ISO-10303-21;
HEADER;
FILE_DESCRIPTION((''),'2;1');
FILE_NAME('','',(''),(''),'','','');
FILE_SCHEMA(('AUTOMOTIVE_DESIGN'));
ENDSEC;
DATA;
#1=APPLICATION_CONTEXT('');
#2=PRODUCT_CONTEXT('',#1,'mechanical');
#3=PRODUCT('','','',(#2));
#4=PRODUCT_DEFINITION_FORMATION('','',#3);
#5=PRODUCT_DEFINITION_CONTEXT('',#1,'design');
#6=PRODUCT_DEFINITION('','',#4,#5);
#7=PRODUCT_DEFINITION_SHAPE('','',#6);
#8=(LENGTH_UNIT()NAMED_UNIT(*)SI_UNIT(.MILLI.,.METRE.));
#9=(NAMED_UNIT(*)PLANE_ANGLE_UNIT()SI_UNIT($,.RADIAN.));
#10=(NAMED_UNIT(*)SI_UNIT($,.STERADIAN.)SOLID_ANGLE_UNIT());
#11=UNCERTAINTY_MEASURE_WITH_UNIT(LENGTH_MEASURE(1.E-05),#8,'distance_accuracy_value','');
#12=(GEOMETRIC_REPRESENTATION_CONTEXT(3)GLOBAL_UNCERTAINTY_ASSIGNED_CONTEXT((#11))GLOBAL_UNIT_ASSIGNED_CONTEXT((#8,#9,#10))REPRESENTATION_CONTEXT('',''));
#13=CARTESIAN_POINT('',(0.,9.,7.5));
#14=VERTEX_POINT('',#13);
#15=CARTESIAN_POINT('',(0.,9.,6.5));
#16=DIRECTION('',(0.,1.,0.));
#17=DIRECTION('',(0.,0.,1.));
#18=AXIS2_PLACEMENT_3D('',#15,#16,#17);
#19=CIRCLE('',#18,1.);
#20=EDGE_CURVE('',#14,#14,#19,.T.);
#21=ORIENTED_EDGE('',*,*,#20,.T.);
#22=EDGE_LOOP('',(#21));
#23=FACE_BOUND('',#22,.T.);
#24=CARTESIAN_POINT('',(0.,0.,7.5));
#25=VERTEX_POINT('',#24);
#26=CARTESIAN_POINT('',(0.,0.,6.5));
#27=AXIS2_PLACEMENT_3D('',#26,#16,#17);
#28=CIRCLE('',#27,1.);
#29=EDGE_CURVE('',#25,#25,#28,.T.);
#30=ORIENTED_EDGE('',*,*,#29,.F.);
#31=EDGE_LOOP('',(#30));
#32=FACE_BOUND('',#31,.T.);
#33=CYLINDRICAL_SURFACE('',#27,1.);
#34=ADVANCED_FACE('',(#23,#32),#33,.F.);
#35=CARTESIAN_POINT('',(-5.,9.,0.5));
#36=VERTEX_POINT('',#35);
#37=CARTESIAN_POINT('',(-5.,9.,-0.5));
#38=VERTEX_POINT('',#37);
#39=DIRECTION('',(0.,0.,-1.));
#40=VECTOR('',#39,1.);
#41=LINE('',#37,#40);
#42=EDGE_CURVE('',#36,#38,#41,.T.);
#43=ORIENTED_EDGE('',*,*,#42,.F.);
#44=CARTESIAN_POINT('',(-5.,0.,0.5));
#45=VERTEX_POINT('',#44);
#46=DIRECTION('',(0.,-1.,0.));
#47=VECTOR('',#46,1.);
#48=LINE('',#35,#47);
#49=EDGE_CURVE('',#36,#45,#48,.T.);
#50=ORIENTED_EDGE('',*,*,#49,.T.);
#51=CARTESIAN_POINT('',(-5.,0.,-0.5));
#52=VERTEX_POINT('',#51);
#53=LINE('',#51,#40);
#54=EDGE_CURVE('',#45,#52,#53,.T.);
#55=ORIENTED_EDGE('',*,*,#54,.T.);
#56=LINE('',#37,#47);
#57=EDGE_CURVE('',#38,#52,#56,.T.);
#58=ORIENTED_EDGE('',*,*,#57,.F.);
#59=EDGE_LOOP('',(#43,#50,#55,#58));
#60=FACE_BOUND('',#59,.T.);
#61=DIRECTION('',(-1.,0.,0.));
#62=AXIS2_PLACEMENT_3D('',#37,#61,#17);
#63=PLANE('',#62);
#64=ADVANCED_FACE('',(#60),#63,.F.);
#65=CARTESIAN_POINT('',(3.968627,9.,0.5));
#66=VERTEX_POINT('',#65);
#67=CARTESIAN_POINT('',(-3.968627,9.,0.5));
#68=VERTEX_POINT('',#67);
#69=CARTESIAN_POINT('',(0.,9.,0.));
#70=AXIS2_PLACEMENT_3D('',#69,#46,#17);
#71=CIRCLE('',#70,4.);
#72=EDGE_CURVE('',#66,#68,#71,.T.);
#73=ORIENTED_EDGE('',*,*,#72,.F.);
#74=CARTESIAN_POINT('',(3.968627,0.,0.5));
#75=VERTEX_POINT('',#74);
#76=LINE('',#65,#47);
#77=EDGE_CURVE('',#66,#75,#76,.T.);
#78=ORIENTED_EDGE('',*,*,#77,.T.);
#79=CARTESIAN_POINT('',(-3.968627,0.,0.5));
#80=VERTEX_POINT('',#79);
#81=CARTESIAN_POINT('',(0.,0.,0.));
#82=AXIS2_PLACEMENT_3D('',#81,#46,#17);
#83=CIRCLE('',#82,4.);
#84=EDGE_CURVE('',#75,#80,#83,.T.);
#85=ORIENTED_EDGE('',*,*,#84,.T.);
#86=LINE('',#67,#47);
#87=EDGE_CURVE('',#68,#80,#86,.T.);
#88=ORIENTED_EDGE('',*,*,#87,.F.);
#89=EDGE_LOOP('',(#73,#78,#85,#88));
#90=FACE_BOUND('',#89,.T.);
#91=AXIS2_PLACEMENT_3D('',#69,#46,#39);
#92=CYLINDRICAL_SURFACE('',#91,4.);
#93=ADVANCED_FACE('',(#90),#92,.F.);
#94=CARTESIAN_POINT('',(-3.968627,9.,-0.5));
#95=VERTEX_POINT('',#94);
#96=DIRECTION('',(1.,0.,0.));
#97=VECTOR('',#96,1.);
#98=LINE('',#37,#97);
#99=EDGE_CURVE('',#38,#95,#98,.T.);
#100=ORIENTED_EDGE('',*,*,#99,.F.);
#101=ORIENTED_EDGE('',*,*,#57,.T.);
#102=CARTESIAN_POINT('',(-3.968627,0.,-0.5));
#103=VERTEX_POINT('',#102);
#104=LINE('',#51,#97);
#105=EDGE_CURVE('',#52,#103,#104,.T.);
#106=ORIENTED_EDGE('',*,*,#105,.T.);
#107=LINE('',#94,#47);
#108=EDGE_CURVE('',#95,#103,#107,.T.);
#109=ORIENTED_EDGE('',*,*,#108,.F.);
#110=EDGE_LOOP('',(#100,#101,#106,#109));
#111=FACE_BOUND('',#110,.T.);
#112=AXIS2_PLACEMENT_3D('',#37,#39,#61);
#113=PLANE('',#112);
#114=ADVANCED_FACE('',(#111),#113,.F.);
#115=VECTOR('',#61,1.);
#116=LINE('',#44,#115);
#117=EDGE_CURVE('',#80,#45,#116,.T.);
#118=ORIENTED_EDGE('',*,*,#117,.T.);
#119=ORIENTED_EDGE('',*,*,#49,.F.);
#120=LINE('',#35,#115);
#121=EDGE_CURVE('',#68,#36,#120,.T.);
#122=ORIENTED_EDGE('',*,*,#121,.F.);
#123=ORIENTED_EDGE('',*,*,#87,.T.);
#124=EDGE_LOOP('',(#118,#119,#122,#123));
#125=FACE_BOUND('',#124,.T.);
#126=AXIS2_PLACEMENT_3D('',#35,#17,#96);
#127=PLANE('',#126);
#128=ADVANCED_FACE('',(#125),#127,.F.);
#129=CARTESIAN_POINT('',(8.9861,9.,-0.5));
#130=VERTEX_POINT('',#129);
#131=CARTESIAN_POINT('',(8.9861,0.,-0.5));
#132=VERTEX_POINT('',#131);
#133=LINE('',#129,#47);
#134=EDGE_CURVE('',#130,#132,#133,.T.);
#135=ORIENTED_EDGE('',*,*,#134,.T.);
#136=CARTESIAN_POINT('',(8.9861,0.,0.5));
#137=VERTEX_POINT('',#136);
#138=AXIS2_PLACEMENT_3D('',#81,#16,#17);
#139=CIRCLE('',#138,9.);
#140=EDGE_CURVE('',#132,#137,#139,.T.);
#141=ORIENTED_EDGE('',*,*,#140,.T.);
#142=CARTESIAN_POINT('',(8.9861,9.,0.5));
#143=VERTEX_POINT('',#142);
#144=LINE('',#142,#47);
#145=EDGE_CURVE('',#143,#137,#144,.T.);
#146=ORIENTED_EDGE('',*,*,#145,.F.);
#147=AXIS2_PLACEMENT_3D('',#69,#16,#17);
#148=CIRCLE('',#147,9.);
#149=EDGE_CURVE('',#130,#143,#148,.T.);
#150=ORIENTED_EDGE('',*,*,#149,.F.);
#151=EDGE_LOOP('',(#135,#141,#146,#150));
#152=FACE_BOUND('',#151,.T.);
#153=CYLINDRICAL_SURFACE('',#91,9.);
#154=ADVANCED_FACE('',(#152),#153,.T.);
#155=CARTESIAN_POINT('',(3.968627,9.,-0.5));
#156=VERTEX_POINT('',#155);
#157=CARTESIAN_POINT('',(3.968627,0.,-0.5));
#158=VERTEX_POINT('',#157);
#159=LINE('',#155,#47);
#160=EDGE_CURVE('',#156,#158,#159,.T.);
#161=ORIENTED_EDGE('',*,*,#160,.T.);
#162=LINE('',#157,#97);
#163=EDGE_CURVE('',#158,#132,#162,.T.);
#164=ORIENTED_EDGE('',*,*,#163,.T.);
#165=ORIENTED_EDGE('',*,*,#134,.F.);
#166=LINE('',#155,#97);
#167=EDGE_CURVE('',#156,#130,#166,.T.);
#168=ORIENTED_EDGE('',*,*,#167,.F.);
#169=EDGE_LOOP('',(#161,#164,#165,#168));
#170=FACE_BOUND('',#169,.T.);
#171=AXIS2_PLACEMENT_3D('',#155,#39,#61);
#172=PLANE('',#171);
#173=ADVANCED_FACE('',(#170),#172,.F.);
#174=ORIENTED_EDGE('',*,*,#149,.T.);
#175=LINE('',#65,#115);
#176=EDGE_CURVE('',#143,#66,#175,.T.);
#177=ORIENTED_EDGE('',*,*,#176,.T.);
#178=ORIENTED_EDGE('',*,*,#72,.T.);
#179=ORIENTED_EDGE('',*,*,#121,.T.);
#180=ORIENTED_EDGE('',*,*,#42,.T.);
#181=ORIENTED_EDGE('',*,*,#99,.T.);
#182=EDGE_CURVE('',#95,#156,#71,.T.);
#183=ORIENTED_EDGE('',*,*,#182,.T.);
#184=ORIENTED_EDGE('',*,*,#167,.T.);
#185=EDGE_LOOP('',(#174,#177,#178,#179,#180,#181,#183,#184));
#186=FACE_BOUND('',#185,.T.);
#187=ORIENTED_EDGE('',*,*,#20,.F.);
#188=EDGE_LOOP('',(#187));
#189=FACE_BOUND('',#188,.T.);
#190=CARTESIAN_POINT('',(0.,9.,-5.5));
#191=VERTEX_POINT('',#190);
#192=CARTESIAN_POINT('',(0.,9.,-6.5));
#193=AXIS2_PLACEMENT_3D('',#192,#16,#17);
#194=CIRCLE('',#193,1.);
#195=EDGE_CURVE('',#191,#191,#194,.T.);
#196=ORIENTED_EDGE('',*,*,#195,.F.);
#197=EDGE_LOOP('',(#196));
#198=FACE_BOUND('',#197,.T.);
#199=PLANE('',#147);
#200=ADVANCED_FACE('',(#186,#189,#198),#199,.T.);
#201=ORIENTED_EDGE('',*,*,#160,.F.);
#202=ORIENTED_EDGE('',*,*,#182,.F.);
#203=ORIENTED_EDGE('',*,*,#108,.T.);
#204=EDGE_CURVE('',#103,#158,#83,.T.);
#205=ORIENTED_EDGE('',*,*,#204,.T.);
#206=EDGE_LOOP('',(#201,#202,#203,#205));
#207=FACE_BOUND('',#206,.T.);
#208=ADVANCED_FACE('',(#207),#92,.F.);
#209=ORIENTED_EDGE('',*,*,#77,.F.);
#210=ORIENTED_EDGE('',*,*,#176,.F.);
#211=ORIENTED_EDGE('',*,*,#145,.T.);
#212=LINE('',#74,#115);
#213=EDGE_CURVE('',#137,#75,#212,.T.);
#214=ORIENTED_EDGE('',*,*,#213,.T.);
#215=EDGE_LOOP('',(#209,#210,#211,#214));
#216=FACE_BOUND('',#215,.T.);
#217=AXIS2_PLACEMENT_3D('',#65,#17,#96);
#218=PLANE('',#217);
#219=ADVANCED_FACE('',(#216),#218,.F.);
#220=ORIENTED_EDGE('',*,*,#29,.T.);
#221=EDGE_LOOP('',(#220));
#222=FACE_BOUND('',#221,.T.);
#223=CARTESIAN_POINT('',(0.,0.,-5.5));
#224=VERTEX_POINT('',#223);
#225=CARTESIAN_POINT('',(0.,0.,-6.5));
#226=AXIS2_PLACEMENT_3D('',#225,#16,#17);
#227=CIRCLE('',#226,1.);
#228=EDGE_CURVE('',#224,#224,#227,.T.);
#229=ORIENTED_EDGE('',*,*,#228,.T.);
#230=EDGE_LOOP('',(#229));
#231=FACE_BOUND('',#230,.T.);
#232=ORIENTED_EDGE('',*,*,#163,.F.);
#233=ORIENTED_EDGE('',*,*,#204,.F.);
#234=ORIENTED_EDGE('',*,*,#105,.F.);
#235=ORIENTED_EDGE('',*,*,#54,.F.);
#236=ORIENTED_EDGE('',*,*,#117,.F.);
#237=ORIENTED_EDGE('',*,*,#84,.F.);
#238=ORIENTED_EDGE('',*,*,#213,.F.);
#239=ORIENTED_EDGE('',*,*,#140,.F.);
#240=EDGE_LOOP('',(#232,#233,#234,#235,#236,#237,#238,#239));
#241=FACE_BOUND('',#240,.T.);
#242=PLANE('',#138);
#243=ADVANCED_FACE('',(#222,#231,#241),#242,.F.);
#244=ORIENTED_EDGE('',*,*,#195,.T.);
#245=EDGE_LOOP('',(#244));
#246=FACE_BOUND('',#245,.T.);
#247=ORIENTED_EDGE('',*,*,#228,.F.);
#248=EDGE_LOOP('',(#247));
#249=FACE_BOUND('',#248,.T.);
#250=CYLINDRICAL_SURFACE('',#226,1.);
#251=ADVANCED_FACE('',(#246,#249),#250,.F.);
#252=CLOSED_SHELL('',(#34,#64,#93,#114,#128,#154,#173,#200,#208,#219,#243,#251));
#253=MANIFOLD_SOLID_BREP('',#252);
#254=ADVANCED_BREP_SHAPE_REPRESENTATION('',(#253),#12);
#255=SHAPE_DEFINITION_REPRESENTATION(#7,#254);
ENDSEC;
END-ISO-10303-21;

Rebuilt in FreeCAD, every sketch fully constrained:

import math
import FreeCAD as App
import Part
import Sketcher

V = App.Vector

doc = App.newDocument("Part")
params = doc.addObject("Spreadsheet::Sheet", "Params")
for row, (alias, value) in enumerate([
    ("sketch1_radius", "9 mm"),
    ("sketch1_radius2", "4 mm"),
    ("sketch1_height", "1 mm"),
    ("pad1_length", "9 mm"),
    ("sketch2_diameter", "2 mm"),
], start=1):
    params.set(f"A{row}", alias)
    params.set(f"B{row}", "=" + value)
    params.setAlias(f"B{row}", alias)

body = doc.addObject("PartDesign::Body", "Body")

# Sketch on XZ plane
sketch1 = doc.addObject("Sketcher::SketchObject", "Sketch")
body.addObject(sketch1)
sketch1.AttachmentSupport = (doc.XZ_Plane, [""])
sketch1.MapMode = "FlatFace"
sketch1.addGeometry(Part.LineSegment(V(4, -0.5, 0), V(9, -0.5, 0)), False)
sketch1.addGeometry(Part.ArcOfCircle(Part.Circle(V(0, 0, 0), V(0, 0, 1), 9), math.radians(3), math.radians(357)), False)
sketch1.addGeometry(Part.LineSegment(V(9, 0.5, 0), V(4, 0.5, 0)), False)
sketch1.addGeometry(Part.ArcOfCircle(Part.Circle(V(0, 0, 0), V(0, 0, 1), 4), math.radians(7), math.radians(173)), False)
sketch1.addGeometry(Part.LineSegment(V(-4, 0.5, 0), V(-5, 0.5, 0)), False)
sketch1.addGeometry(Part.LineSegment(V(-5, 0.5, 0), V(-5, -0.5, 0)), False)
sketch1.addGeometry(Part.LineSegment(V(-5, -0.5, 0), V(-4, -0.5, 0)), False)
sketch1.addGeometry(Part.ArcOfCircle(Part.Circle(V(0, 0, 0), V(0, 0, 1), 4), math.radians(-173), math.radians(-7)), False)
sketch1.addConstraint(Sketcher.Constraint("Coincident", 0, 2, 1, 2))
sketch1.addConstraint(Sketcher.Constraint("Coincident", 1, 1, 2, 1))
sketch1.addConstraint(Sketcher.Constraint("Coincident", 2, 2, 3, 1))
sketch1.addConstraint(Sketcher.Constraint("Coincident", 3, 2, 4, 1))
sketch1.addConstraint(Sketcher.Constraint("Coincident", 4, 2, 5, 1))
sketch1.addConstraint(Sketcher.Constraint("Coincident", 5, 2, 6, 1))
sketch1.addConstraint(Sketcher.Constraint("Coincident", 6, 2, 7, 1))
sketch1.addConstraint(Sketcher.Constraint("Coincident", 7, 2, 0, 1))
sketch1.addConstraint(Sketcher.Constraint("Horizontal", 0))
sketch1.addConstraint(Sketcher.Constraint("Horizontal", 2))
sketch1.addConstraint(Sketcher.Constraint("Horizontal", 4))
sketch1.addConstraint(Sketcher.Constraint("Vertical", 5))
sketch1.addConstraint(Sketcher.Constraint("Horizontal", 6))
sketch1.addConstraint(Sketcher.Constraint("Coincident", 1, 3, -1, 1))
sketch1.addConstraint(Sketcher.Constraint("Coincident", 3, 3, -1, 1))
sketch1.addConstraint(Sketcher.Constraint("Coincident", 7, 3, -1, 1))
sketch1.addConstraint(Sketcher.Constraint("Equal", 3, 7))
sketch1.addConstraint(Sketcher.Constraint("Horizontal", 2, 2, 3, 2))
sketch1.addConstraint(Sketcher.Constraint("Horizontal", 0, 2, 5, 2))
sketch1.addConstraint(Sketcher.Constraint("Vertical", 0, 2, 1, 1))
sketch1.addConstraint(Sketcher.Constraint("Radius", 1, 9.0))
sketch1.addConstraint(Sketcher.Constraint("Radius", 3, 4.0))
sketch1.addConstraint(Sketcher.Constraint("DistanceY", 5, 2, 5, 1, 1.0))
sketch1.addConstraint(Sketcher.Constraint("DistanceX", 4, 2, -1, 1, 5.0))
sketch1.setExpression("Constraints[20]", "Params.sketch1_radius")
sketch1.setExpression("Constraints[21]", "Params.sketch1_radius2")
sketch1.setExpression("Constraints[22]", "Params.sketch1_height")
pad1 = doc.addObject("PartDesign::Pad", "Pad")
body.addObject(pad1)
pad1.Profile = sketch1
pad1.setExpression("Length", "Params.pad1_length")
pad1.Reversed = True

# Sketch on XZ plane
sketch2 = doc.addObject("Sketcher::SketchObject", "Sketch001")
body.addObject(sketch2)
sketch2.AttachmentSupport = (doc.XZ_Plane, [""])
sketch2.MapMode = "FlatFace"
sketch2.AttachmentOffset = App.Placement(V(0, 0, -9), App.Rotation())
sketch2.addGeometry(Part.Circle(V(0, 6.5, 0), V(0, 0, 1), 1), False)
sketch2.addGeometry(Part.Circle(V(0, -6.5, 0), V(0, 0, 1), 1), False)
sketch2.addConstraint(Sketcher.Constraint("Equal", 0, 1))
sketch2.addConstraint(Sketcher.Constraint("Symmetric", 0, 3, 1, 3, -1, 1))
sketch2.addConstraint(Sketcher.Constraint("PointOnObject", 0, 3, -2))
sketch2.addConstraint(Sketcher.Constraint("Diameter", 0, 2.0))
sketch2.addConstraint(Sketcher.Constraint("DistanceY", 1, 3, 0, 3, 13.0))
sketch2.setExpression("Constraints[3]", "Params.sketch2_diameter")
pocket1 = doc.addObject("PartDesign::Pocket", "Pocket")
body.addObject(pocket1)
pocket1.Profile = sketch2
pocket1.Type = "ThroughAll"
pocket1.Reversed = True

doc.recompute()
